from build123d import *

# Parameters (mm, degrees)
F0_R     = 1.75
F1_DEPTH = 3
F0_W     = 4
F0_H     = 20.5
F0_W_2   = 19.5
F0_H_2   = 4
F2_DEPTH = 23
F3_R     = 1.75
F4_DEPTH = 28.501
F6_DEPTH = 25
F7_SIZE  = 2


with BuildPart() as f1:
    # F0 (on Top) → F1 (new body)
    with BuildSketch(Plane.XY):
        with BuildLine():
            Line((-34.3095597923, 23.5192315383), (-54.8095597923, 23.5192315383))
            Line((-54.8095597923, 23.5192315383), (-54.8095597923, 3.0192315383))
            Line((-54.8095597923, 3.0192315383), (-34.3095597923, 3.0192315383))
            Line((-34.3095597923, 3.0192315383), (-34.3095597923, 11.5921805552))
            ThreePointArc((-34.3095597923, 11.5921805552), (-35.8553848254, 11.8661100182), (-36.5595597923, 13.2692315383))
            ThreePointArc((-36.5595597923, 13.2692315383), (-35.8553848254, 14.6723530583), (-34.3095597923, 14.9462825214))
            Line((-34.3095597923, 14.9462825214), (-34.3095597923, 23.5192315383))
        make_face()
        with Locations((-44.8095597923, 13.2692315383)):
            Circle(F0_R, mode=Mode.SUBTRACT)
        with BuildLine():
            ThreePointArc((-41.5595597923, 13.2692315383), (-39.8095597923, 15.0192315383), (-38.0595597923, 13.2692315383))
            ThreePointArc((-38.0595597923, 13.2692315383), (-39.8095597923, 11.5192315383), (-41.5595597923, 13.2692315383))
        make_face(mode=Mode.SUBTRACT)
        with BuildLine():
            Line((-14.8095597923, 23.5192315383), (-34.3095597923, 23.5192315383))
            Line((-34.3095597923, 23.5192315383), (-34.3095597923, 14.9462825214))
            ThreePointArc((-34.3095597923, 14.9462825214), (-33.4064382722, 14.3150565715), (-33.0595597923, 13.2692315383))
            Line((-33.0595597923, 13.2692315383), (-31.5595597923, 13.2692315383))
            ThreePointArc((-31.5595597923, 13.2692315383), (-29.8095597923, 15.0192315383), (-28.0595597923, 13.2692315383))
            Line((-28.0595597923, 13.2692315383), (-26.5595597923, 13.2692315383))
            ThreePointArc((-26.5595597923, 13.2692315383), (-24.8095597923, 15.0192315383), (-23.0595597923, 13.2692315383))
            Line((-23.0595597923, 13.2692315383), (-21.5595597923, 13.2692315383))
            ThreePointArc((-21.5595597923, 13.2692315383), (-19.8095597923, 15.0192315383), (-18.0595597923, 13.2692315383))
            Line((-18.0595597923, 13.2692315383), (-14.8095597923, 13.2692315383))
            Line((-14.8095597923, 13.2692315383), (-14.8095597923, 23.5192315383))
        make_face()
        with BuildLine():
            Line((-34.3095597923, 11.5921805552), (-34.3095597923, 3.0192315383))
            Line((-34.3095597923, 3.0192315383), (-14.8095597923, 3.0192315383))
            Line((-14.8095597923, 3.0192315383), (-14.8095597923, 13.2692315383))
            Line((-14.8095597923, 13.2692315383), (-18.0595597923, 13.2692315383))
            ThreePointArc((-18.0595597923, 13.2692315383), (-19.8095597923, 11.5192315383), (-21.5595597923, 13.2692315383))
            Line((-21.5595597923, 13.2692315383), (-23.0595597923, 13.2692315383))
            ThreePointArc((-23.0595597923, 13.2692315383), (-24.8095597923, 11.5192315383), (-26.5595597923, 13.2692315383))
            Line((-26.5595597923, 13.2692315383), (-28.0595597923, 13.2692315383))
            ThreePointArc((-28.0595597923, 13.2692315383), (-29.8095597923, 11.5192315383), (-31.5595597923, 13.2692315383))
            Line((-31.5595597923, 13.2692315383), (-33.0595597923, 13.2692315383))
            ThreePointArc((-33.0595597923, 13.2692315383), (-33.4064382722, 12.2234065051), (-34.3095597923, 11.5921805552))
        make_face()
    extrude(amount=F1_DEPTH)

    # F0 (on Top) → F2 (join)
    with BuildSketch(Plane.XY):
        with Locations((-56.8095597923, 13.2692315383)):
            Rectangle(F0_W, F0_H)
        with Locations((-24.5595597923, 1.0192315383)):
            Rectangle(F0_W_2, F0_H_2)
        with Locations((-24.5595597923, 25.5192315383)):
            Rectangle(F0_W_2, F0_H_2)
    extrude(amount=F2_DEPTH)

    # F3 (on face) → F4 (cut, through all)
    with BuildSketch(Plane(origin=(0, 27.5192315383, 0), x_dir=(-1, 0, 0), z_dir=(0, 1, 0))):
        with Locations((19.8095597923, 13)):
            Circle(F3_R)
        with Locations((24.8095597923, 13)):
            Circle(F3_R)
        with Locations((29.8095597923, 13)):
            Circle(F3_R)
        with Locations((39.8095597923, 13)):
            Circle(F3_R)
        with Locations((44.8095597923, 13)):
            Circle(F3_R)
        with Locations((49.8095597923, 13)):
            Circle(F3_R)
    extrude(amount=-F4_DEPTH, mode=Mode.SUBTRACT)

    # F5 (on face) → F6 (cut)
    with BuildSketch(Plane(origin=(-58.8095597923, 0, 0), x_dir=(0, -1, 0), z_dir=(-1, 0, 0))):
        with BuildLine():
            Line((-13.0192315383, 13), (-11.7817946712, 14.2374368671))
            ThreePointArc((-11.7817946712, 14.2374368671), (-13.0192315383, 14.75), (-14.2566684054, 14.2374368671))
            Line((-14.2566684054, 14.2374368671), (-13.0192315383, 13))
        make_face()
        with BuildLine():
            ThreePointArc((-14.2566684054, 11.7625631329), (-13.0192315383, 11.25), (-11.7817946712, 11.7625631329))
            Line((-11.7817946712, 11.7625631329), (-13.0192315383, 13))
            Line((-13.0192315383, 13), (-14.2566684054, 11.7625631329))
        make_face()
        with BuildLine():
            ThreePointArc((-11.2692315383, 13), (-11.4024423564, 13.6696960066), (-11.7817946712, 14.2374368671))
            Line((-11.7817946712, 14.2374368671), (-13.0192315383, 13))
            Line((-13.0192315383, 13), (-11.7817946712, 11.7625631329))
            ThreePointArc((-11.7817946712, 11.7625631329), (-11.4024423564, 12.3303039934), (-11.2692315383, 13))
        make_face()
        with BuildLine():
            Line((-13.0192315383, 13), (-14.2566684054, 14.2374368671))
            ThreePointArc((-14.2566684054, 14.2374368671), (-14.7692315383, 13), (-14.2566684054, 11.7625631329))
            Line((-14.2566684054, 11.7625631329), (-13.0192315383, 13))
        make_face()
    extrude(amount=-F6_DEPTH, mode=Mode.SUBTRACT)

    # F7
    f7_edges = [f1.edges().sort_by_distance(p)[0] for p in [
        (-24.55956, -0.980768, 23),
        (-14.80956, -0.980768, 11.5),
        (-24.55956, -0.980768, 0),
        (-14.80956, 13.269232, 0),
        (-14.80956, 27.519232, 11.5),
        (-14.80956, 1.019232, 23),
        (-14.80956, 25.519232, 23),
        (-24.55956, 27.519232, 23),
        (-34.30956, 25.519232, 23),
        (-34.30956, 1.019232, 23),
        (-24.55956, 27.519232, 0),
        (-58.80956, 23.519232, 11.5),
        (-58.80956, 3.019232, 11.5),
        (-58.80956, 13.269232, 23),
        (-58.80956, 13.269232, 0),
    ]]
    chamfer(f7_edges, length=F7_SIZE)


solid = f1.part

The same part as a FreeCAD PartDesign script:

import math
import FreeCAD as App
import Part
import Sketcher


def edges_at(feature, points):
    """Names of the edges that pass closest to the given points."""
    edges = feature.Shape.Edges
    near = lambda p: min(range(len(edges)), key=lambda i: edges[i].distToShape(Part.Vertex(*p))[0])
    return sorted({f"Edge{near(p) + 1}" for p in points})

doc = App.newDocument("Part")
params = doc.addObject("Spreadsheet::Sheet", "Params")
for row, (alias, value) in enumerate([
    ("sketch1_diameter", "3.5 mm"),
    ("sketch1_width", "40 mm"),
    ("sketch1_height", "20.5 mm"),
    ("pad1_length", "3 mm"),
    ("sketch2_width", "4 mm"),
    ("sketch2_width2", "19.5 mm"),
    ("sketch2_height", "20.5 mm"),
    ("pad2_length", "23 mm"),
    ("sketch3_diameter", "3.5 mm"),
    ("sketch4_radius", "1.75 mm"),
    ("pocket2_length", "25 mm"),
    ("chamfer_size", "2 mm"),
], start=1):
    params.set(f"A{row}", alias)
    params.set(f"B{row}", "=" + value)
    params.setAlias(f"B{row}", alias)

body = doc.addObject("PartDesign::Body", "Body")

sketch1 = body.newObject("Sketcher::SketchObject", "Sketch")
sketch1.AttachmentSupport = (doc.getObject("XY_Plane"), [""])
sketch1.MapMode = "FlatFace"
sketch1.addGeometry([
    Part.LineSegment(App.Vector(-54.8, 23.5, 0), App.Vector(-54.8, 3, 0)),
    Part.LineSegment(App.Vector(-54.8, 3, 0), App.Vector(-14.8, 3, 0)),
    Part.LineSegment(App.Vector(-14.8, 3, 0), App.Vector(-14.8, 23.5, 0)),
    Part.LineSegment(App.Vector(-14.8, 23.5, 0), App.Vector(-54.8, 23.5, 0)),
    Part.ArcOfCircle(Part.Circle(App.Vector(-34.8, 13.3, 0), App.Vector(0, 0, 1), 1.8), math.radians(180), math.radians(287)),
    Part.ArcOfCircle(Part.Circle(App.Vector(-34.8, 13.3, 0), App.Vector(0, 0, 1), 1.8), math.radians(73), math.radians(180)),
    Part.ArcOfCircle(Part.Circle(App.Vector(-34.8, 13.3, 0), App.Vector(0, 0, 1), 1.8), math.radians(0), math.radians(73)),
    Part.ArcOfCircle(Part.Circle(App.Vector(-34.8, 13.3, 0), App.Vector(0, 0, 1), 1.8), math.radians(-73), math.radians(0)),
    Part.Circle(App.Vector(-29.8, 13.3, 0), App.Vector(0, 0, 1), 1.8),
    Part.Circle(App.Vector(-24.8, 13.3, 0), App.Vector(0, 0, 1), 1.8),
    Part.Circle(App.Vector(-19.8, 13.3, 0), App.Vector(0, 0, 1), 1.8),
    Part.Circle(App.Vector(-44.8, 13.3, 0), App.Vector(0, 0, 1), 1.8),
    Part.Circle(App.Vector(-39.8, 13.3, 0), App.Vector(0, 0, 1), 1.8),
], False)
sketch1.addConstraint([
    Sketcher.Constraint("Coincident", 0, 2, 1, 1),
    Sketcher.Constraint("Coincident", 1, 2, 2, 1),
    Sketcher.Constraint("Coincident", 2, 2, 3, 1),
    Sketcher.Constraint("Coincident", 3, 2, 0, 1),
    Sketcher.Constraint("Tangent", 4, 1, 5, 2),
    Sketcher.Constraint("Tangent", 5, 1, 6, 2),
    Sketcher.Constraint("Tangent", 6, 1, 7, 2),
    Sketcher.Constraint("Tangent", 7, 1, 4, 2),
    Sketcher.Constraint("Vertical", 0),
    Sketcher.Constraint("Horizontal", 1),
    Sketcher.Constraint("Vertical", 2),
    Sketcher.Constraint("Horizontal", 3),
    Sketcher.Constraint("Equal", 4, 5),
    Sketcher.Constraint("Equal", 7, 8),
    Sketcher.Constraint("Equal", 8, 9),
    Sketcher.Constraint("Equal", 9, 10),
    Sketcher.Constraint("Equal", 10, 11),
    Sketcher.Constraint("Equal", 11, 12),
    Sketcher.Constraint("Horizontal", 7, 3, 8, 3),
    Sketcher.Constraint("Horizontal", 8, 3, 9, 3),
    Sketcher.Constraint("Horizontal", 9, 3, 10, 3),
    Sketcher.Constraint("Horizontal", 10, 3, 11, 3),
    Sketcher.Constraint("Horizontal", 11, 3, 12, 3),
    Sketcher.Constraint("Horizontal", 12, 3, 4, 1),
    Sketcher.Constraint("Horizontal", 4, 1, 6, 1),
    Sketcher.Constraint("Vertical", 5, 1, 7, 1),
    Sketcher.Constraint("Diameter", 8, 3.5),
    Sketcher.Constraint("DistanceX", 1, 1, 1, 2, 40.0),
    Sketcher.Constraint("DistanceY", 0, 2, 0, 1, 20.5),
    Sketcher.Constraint("DistanceX", 4, 3, 8, 3, 5.0),
    Sketcher.Constraint("DistanceX", 8, 3, 9, 3, 5.0),
    Sketcher.Constraint("DistanceX", 9, 3, 10, 3, 5.0),
    Sketcher.Constraint("DistanceX", 11, 3, 4, 3, 10.0),
    Sketcher.Constraint("DistanceX", 12, 3, 4, 3, 5.0),
    Sketcher.Constraint("DistanceX", 0, 2, 11, 3, 10.0),
    Sketcher.Constraint("DistanceX", 6, 3, 5, 1, 0.5),
    Sketcher.Constraint("DistanceY", 0, 2, 11, 3, 10.25),
    Sketcher.Constraint("DistanceX", 4, 3, -1, 1, 34.80956),
    Sketcher.Constraint("DistanceY", -1, 1, 4, 3, 13.269232),
])
sketch1.setExpression("Constraints[26]", "Params.sketch1_diameter")
sketch1.setExpression("Constraints[27]", "Params.sketch1_width")
sketch1.setExpression("Constraints[28]", "Params.sketch1_height")
pad1 = body.newObject("PartDesign::Pad", "Pad")
pad1.Profile = sketch1
pad1.setExpression("Length", "Params.pad1_length")

sketch2 = body.newObject("Sketcher::SketchObject", "Sketch001")
sketch2.AttachmentSupport = (doc.getObject("XY_Plane"), [""])
sketch2.MapMode = "FlatFace"
sketch2.addGeometry([
    Part.LineSegment(App.Vector(-58.8, 23.5, 0), App.Vector(-58.8, 3, 0)),
    Part.LineSegment(App.Vector(-58.8, 3, 0), App.Vector(-54.8, 3, 0)),
    Part.LineSegment(App.Vector(-54.8, 3, 0), App.Vector(-54.8, 23.5, 0)),
    Part.LineSegment(App.Vector(-54.8, 23.5, 0), App.Vector(-58.8, 23.5, 0)),
    Part.LineSegment(App.Vector(-34.3, 3, 0), App.Vector(-34.3, -1, 0)),
    Part.LineSegment(App.Vector(-34.3, -1, 0), App.Vector(-14.8, -1, 0)),
    Part.LineSegment(App.Vector(-14.8, -1, 0), App.Vector(-14.8, 3, 0)),
    Part.LineSegment(App.Vector(-14.8, 3, 0), App.Vector(-34.3, 3, 0)),
    Part.LineSegment(App.Vector(-34.3, 27.5, 0), App.Vector(-34.3, 23.5, 0)),
    Part.LineSegment(App.Vector(-34.3, 23.5, 0), App.Vector(-14.8, 23.5, 0)),
    Part.LineSegment(App.Vector(-14.8, 23.5, 0), App.Vector(-14.8, 27.5, 0)),
    Part.LineSegment(App.Vector(-14.8, 27.5, 0), App.Vector(-34.3, 27.5, 0)),
], False)
sketch2.addConstraint([
    Sketcher.Constraint("Coincident", 0, 2, 1, 1),
    Sketcher.Constraint("Coincident", 1, 2, 2, 1),
    Sketcher.Constraint("Coincident", 2, 2, 3, 1),
    Sketcher.Constraint("Coincident", 3, 2, 0, 1),
    Sketcher.Constraint("Coincident", 4, 2, 5, 1),
    Sketcher.Constraint("Coincident", 5, 2, 6, 1),
    Sketcher.Constraint("Coincident", 6, 2, 7, 1),
    Sketcher.Constraint("Coincident", 7, 2, 4, 1),
    Sketcher.Constraint("Coincident", 8, 2, 9, 1),
    Sketcher.Constraint("Coincident", 9, 2, 10, 1),
    Sketcher.Constraint("Coincident", 10, 2, 11, 1),
    Sketcher.Constraint("Coincident", 11, 2, 8, 1),
    Sketcher.Constraint("Vertical", 0),
    Sketcher.Constraint("Horizontal", 1),
    Sketcher.Constraint("Vertical", 2),
    Sketcher.Constraint("Horizontal", 3),
    Sketcher.Constraint("Vertical", 4),
    Sketcher.Constraint("Horizontal", 5),
    Sketcher.Constraint("Vertical", 6),
    Sketcher.Constraint("Horizontal", 7),
    Sketcher.Constraint("Vertical", 8),
    Sketcher.Constraint("Horizontal", 9),
    Sketcher.Constraint("Vertical", 10),
    Sketcher.Constraint("Horizontal", 11),
    Sketcher.Constraint("Horizontal", 1, 2, 6, 2),
    Sketcher.Constraint("Horizontal", 3, 2, 8, 2),
    Sketcher.Constraint("Vertical", 7, 2, 8, 2),
    Sketcher.Constraint("Vertical", 6, 2, 9, 2),
    Sketcher.Constraint("Equal", 3, 4),
    Sketcher.Constraint("Equal", 6, 8),
    Sketcher.Constraint("DistanceX", 1, 1, 1, 2, 4.0),
    Sketcher.Constraint("DistanceX", 5, 1, 5, 2, 19.5),
    Sketcher.Constraint("DistanceY", 0, 2, 0, 1, 20.5),
    Sketcher.Constraint("DistanceX", 1, 2, 5, 2, 40.0),
    Sketcher.Constraint("DistanceX", 0, 2, -1, 1, 58.80956),
    Sketcher.Constraint("DistanceY", -1, 1, 0, 2, 3.019232),
])
sketch2.setExpression("Constraints[30]", "Params.sketch2_width")
sketch2.setExpression("Constraints[31]", "Params.sketch2_width2")
sketch2.setExpression("Constraints[32]", "Params.sketch2_height")
pad2 = body.newObject("PartDesign::Pad", "Pad001")
pad2.Profile = sketch2
pad2.setExpression("Length", "Params.pad2_length")

sketch3 = body.newObject("Sketcher::SketchObject", "Sketch002")
sketch3.AttachmentSupport = (doc.getObject("XZ_Plane"), [""])
sketch3.MapMode = "FlatFace"
sketch3.AttachmentOffset = App.Placement(App.Vector(0, 0, -27.519232), App.Rotation())
sketch3.addGeometry([
    Part.Circle(App.Vector(-19.8, 13, 0), App.Vector(0, 0, 1), 1.8),
    Part.Circle(App.Vector(-24.8, 13, 0), App.Vector(0, 0, 1), 1.8),
    Part.Circle(App.Vector(-29.8, 13, 0), App.Vector(0, 0, 1), 1.8),
    Part.Circle(App.Vector(-39.8, 13, 0), App.Vector(0, 0, 1), 1.8),
    Part.Circle(App.Vector(-44.8, 13, 0), App.Vector(0, 0, 1), 1.8),
    Part.Circle(App.Vector(-49.8, 13, 0), App.Vector(0, 0, 1), 1.8),
], False)
sketch3.addConstraint([
    Sketcher.Constraint("Equal", 0, 1),
    Sketcher.Constraint("Equal", 1, 2),
    Sketcher.Constraint("Equal", 2, 3),
    Sketcher.Constraint("Equal", 3, 4),
    Sketcher.Constraint("Equal", 4, 5),
    Sketcher.Constraint("Horizontal", 0, 3, 1, 3),
    Sketcher.Constraint("Horizontal", 1, 3, 2, 3),
    Sketcher.Constraint("Horizontal", 2, 3, 3, 3),
    Sketcher.Constraint("Horizontal", 3, 3, 4, 3),
    Sketcher.Constraint("Horizontal", 4, 3, 5, 3),
    Sketcher.Constraint("Diameter", 0, 3.5),
    Sketcher.Constraint("DistanceY", -1, 1, 0, 3, 13.0),
    Sketcher.Constraint("DistanceX", 1, 3, 0, 3, 5.0),
    Sketcher.Constraint("DistanceX", 2, 3, 1, 3, 5.0),
    Sketcher.Constraint("DistanceX", 3, 3, 2, 3, 10.0),
    Sketcher.Constraint("DistanceX", 4, 3, 3, 3, 5.0),
    Sketcher.Constraint("DistanceX", 5, 3, 4, 3, 5.0),
    Sketcher.Constraint("DistanceX", 0, 3, -1, 1, 19.80956),
])
sketch3.setExpression("Constraints[10]", "Params.sketch3_diameter")
pocket1 = body.newObject("PartDesign::Pocket", "Pocket")
pocket1.Profile = sketch3
pocket1.Type = "ThroughAll"
pocket1.Reversed = True

sketch4 = body.newObject("Sketcher::SketchObject", "Sketch003")
sketch4.AttachmentSupport = (doc.getObject("YZ_Plane"), [""])
sketch4.MapMode = "FlatFace"
sketch4.AttachmentOffset = App.Placement(App.Vector(0, 0, -58.80956), App.Rotation())
sketch4.addGeometry([
    Part.ArcOfCircle(Part.Circle(App.Vector(13, 13, 0), App.Vector(0, 0, 1), 1.8), math.radians(45), math.radians(135)),
    Part.ArcOfCircle(Part.Circle(App.Vector(13, 13, 0), App.Vector(0, 0, 1), 1.8), math.radians(-45), math.radians(45)),
    Part.ArcOfCircle(Part.Circle(App.Vector(13, 13, 0), App.Vector(0, 0, 1), 1.8), math.radians(-135), math.radians(-45)),
    Part.ArcOfCircle(Part.Circle(App.Vector(13, 13, 0), App.Vector(0, 0, 1), 1.8), math.radians(180), math.radians(225)),
    Part.ArcOfCircle(Part.Circle(App.Vector(13, 13, 0), App.Vector(0, 0, 1), 1.8), math.radians(135), math.radians(180)),
], False)
sketch4.addConstraint([
    Sketcher.Constraint("Tangent", 0, 1, 1, 2),
    Sketcher.Constraint("Tangent", 1, 1, 2, 2),
    Sketcher.Constraint("Tangent", 2, 1, 3, 2),
    Sketcher.Constraint("Tangent", 3, 1, 4, 2),
    Sketcher.Constraint("Tangent", 4, 1, 0, 2),
    Sketcher.Constraint("Coincident", 2, 3, 0, 3),
    Sketcher.Constraint("Horizontal", 1, 1, 2, 1),
    Sketcher.Constraint("Horizontal", 4, 3, 3, 1),
    Sketcher.Constraint("Horizontal", 0, 1, 4, 1),
    Sketcher.Constraint("Vertical", 0, 1, 1, 1),
    Sketcher.Constraint("Radius", 0, 1.75),
    Sketcher.Constraint("DistanceY", -1, 1, 0, 3, 13.0),
    Sketcher.Constraint("DistanceX", -1, 1, 0, 3, 13.019232),
    Sketcher.Constraint("DistanceX", -1, 1, 0, 1, 14.256668),
])
sketch4.setExpression("Constraints[10]", "Params.sketch4_radius")
pocket2 = body.newObject("PartDesign::Pocket", "Pocket001")
pocket2.Profile = sketch4
pocket2.setExpression("Length", "Params.pocket2_length")
pocket2.Reversed = True
doc.recompute()

chamfer = body.newObject("PartDesign::Chamfer", "Chamfer")
chamfer.Base = (pocket2, edges_at(pocket2, [
    (-24.56, -0.981, 23),
    (-14.81, -0.981, 11.5),
    (-24.56, -0.981, 0),
    (-14.81, 13.269, 0),
    (-14.81, 27.519, 11.5),
    (-14.81, 1.019, 23),
    (-14.81, 25.519, 23),
    (-24.56, 27.519, 23),
    (-34.31, 25.519, 23),
    (-34.31, 1.019, 23),
    (-24.56, 27.519, 0),
    (-58.81, 23.519, 11.5),
    (-58.81, 3.019, 11.5),
    (-58.81, 13.269, 23),
    (-58.81, 13.269, 0),
]))
chamfer.setExpression("Size", "Params.chamfer_size")

doc.recompute()
